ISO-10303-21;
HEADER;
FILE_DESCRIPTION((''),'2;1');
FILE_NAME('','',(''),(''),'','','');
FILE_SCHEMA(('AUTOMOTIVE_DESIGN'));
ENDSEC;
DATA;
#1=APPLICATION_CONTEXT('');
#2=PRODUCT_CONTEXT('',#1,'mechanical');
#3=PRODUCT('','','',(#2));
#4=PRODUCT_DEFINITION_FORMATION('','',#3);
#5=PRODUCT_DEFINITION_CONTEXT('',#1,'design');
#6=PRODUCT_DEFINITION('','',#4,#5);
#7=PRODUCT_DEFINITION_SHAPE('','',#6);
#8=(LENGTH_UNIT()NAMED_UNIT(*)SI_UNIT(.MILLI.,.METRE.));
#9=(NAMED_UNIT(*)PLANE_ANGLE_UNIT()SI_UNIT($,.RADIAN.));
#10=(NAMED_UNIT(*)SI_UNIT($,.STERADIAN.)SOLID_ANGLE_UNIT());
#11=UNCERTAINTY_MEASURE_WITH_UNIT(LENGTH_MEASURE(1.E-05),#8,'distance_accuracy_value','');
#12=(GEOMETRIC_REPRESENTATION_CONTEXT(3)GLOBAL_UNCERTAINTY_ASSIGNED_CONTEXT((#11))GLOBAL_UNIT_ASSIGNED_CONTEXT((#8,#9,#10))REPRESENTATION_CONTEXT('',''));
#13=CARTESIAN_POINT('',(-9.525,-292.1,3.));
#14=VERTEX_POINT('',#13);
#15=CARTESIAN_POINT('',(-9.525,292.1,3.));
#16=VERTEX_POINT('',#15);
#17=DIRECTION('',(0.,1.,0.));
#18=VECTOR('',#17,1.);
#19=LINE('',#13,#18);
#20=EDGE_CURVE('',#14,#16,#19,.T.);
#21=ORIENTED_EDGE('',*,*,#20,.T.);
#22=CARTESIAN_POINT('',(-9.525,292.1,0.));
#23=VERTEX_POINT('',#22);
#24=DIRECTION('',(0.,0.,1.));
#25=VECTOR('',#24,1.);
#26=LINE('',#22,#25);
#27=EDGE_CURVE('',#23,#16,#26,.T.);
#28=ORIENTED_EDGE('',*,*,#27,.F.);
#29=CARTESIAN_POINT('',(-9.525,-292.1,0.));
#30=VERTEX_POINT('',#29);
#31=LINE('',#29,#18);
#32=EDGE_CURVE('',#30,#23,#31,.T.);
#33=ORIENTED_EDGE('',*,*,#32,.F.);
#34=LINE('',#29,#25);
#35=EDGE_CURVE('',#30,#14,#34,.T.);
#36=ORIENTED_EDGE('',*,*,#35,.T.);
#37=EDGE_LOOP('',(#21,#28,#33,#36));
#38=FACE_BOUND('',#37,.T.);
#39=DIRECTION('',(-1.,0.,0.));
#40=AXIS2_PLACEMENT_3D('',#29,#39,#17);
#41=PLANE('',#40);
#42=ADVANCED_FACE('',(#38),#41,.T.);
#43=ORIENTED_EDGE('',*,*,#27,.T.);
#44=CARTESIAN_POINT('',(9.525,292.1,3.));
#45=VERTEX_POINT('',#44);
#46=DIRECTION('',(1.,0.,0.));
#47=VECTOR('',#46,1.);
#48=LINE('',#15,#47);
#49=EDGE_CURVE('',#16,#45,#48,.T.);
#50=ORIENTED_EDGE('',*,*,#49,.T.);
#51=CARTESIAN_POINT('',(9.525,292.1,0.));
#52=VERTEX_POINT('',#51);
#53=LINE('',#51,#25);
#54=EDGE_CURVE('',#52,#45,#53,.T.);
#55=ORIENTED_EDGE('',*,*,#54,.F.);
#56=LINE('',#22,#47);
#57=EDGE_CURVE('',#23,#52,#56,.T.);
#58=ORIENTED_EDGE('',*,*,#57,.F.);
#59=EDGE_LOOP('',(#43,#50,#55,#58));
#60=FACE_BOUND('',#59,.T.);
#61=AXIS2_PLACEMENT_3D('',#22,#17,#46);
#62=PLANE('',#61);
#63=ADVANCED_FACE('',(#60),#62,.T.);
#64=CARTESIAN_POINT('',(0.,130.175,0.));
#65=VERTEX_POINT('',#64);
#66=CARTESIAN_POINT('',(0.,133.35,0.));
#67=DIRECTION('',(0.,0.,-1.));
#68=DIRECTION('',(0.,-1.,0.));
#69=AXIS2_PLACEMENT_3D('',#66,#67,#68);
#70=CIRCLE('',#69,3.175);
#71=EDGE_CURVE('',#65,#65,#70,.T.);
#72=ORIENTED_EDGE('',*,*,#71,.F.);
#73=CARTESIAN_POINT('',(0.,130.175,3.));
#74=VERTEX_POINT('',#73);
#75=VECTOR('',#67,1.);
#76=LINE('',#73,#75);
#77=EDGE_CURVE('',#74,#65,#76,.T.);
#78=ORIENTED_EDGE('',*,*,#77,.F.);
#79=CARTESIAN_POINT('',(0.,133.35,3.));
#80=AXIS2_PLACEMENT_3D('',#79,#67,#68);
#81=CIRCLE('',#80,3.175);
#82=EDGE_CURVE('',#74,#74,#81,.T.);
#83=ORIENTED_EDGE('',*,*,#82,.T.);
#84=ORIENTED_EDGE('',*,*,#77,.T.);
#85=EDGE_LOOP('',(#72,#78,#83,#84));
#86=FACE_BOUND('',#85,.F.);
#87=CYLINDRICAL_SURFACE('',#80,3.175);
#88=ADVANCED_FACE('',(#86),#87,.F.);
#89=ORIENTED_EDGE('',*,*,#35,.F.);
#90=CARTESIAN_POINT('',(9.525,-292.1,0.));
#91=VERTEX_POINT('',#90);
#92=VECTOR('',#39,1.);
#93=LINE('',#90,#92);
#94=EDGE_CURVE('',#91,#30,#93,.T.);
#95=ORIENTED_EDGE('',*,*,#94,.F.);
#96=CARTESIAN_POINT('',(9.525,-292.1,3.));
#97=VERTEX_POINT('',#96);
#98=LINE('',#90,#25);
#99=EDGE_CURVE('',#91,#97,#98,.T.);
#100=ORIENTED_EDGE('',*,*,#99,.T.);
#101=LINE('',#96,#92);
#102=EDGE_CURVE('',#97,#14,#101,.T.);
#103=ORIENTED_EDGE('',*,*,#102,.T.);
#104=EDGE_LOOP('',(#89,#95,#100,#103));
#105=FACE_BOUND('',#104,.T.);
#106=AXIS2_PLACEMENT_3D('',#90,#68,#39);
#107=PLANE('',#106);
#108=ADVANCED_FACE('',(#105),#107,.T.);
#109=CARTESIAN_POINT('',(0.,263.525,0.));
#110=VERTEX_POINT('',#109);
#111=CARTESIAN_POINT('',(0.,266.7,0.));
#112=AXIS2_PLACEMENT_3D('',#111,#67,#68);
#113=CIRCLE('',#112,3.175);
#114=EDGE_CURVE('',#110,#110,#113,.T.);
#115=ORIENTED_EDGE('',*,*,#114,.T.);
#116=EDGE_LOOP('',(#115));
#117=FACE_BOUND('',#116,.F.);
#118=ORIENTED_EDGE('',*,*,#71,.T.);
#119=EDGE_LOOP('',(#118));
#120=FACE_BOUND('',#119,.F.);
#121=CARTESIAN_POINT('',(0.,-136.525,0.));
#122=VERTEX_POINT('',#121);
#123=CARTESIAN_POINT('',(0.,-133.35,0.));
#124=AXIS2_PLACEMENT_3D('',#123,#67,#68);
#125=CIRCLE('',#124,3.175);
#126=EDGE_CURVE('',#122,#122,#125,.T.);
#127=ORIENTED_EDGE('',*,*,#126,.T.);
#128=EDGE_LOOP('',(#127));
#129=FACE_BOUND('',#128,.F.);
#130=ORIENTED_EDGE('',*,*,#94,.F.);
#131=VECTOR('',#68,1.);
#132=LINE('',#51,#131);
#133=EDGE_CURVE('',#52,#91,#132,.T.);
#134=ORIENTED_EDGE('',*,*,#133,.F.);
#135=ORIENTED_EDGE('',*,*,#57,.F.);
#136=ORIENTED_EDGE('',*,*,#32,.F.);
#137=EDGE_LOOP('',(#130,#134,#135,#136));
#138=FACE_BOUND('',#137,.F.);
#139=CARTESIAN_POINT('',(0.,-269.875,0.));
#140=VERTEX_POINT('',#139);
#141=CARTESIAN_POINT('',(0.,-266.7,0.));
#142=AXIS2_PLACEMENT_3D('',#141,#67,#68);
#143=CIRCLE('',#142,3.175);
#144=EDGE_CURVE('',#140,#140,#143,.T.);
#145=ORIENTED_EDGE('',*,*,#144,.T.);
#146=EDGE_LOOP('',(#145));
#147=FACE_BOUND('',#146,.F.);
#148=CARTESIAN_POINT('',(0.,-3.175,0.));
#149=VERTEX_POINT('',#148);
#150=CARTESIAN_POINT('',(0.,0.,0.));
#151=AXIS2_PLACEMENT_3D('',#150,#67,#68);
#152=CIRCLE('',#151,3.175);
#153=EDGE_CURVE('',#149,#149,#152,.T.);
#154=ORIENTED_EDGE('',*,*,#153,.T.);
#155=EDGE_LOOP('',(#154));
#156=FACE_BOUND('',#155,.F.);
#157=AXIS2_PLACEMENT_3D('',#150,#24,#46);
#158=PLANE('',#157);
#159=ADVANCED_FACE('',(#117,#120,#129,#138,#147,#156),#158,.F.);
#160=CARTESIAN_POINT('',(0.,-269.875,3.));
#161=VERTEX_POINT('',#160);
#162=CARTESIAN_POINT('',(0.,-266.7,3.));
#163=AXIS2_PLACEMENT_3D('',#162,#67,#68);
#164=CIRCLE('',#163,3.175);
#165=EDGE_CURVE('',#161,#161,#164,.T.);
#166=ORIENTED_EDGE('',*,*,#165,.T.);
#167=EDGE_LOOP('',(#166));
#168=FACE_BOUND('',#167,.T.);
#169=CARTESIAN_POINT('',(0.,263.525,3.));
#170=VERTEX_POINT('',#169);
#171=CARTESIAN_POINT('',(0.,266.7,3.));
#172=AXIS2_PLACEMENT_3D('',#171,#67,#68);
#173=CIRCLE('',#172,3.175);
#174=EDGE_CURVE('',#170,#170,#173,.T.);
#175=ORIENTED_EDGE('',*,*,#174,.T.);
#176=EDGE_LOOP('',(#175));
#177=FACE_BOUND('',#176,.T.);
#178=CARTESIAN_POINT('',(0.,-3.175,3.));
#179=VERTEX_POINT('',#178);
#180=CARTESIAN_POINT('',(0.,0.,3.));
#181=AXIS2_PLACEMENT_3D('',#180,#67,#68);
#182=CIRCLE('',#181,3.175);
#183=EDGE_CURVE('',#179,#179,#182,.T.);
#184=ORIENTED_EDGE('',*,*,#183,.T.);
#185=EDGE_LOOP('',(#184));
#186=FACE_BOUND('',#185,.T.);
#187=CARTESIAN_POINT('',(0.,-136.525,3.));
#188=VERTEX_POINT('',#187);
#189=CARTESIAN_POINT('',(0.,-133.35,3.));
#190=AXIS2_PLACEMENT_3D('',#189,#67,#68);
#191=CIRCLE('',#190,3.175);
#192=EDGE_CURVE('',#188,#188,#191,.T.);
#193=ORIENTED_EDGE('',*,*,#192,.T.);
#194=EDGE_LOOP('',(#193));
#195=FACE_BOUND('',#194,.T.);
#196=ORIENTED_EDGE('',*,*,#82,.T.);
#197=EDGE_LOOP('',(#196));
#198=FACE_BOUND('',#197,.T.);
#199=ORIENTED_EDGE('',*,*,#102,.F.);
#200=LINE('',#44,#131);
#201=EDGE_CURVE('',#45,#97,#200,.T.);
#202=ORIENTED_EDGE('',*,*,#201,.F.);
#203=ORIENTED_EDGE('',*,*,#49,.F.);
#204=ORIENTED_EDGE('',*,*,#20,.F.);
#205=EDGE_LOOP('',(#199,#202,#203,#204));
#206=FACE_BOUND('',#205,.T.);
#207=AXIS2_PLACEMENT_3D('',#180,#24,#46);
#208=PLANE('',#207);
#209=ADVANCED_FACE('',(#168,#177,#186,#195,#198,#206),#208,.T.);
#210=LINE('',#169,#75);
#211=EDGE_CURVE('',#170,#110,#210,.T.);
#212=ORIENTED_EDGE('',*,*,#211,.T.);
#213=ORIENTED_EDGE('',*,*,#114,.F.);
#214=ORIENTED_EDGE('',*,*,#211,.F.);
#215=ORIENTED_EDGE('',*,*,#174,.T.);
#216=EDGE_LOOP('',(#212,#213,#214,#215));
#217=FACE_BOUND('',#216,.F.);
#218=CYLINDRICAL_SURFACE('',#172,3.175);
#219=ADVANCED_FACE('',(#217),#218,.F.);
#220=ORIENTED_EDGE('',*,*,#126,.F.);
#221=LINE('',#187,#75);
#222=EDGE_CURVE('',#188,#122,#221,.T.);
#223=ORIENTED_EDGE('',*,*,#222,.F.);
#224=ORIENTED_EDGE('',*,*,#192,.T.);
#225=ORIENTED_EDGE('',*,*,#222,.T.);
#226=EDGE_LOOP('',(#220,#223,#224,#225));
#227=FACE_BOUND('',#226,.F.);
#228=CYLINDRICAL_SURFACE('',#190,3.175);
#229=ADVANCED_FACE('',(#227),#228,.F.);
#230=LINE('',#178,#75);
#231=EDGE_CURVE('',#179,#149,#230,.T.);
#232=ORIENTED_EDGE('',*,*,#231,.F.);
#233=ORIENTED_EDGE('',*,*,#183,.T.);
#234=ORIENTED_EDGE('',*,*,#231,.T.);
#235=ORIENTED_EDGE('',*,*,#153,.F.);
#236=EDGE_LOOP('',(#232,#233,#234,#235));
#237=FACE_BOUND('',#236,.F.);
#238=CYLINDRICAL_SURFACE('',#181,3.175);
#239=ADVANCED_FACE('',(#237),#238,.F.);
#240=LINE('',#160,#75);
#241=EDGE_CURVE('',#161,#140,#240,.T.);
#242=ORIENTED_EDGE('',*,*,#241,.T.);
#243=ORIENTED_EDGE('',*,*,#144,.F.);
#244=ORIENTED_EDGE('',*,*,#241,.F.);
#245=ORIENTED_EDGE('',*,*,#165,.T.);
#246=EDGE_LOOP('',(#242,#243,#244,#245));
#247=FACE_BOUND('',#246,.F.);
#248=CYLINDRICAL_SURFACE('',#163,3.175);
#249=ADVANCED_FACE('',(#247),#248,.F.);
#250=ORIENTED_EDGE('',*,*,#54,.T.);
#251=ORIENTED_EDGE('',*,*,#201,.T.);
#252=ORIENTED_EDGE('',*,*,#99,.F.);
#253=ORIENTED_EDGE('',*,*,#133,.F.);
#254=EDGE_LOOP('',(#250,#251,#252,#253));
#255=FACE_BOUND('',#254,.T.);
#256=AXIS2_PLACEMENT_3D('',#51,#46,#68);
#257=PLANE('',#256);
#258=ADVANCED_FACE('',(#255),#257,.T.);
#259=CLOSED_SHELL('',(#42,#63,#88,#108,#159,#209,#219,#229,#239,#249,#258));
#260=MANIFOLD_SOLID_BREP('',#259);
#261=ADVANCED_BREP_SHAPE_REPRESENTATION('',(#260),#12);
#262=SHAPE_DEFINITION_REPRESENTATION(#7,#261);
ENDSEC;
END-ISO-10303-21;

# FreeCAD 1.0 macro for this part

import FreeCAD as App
import Part
import Sketcher
Q = App.Units.Quantity


def add_polygon(sketch, points):
    """Adds a closed chain of lines whose ends are joined by coincident constraints."""
    first, n = sketch.GeometryCount, len(points)
    for a, b in zip(points, points[1:] + points[:1]):
        sketch.addGeometry(Part.LineSegment(App.Vector(*a, 0), App.Vector(*b, 0)), False)
    for i in range(n):
        sketch.addConstraint(Sketcher.Constraint("Coincident", first + i, 2, first + (i + 1) % n, 1))

doc = App.newDocument("Part")
body = doc.addObject("PartDesign::Body", "Body")

sketch1 = body.newObject("Sketcher::SketchObject", "Sketch")
sketch1.AttachmentSupport = (doc.getObject("XY_Plane"), [""])
sketch1.MapMode = "FlatFace"
add_polygon(sketch1, [(10, 292), (-10, 292), (-10, -292), (10, -292)])
sketch1.addConstraint([
    Sketcher.Constraint("Horizontal", 0),
    Sketcher.Constraint("Vertical", 1),
    Sketcher.Constraint("Horizontal", 2),
    Sketcher.Constraint("Vertical", 3),
    Sketcher.Constraint("Symmetric", 0, 2, 2, 2, -1, 1),
    Sketcher.Constraint("DistanceY", 1, 2, 1, 1, Q("23 in")),
    Sketcher.Constraint("DistanceX", 0, 2, 0, 1, Q("0.75 in")),
])
pad1 = body.newObject("PartDesign::Pad", "Pad")
pad1.Profile = sketch1
pad1.Length = Q("0.1181102 in")

sketch2 = body.newObject("Sketcher::SketchObject", "Sketch001")
sketch2.AttachmentSupport = (doc.getObject("XY_Plane"), [""])
sketch2.MapMode = "FlatFace"
sketch2.AttachmentOffset = App.Placement(App.Vector(0, 0, 0.1181102 * 25.4), App.Rotation())
sketch2.addGeometry([
    Part.Circle(App.Vector(0, 266.7, 0), App.Vector(0, 0, 1), 3.2),
    Part.Circle(App.Vector(0, 133.3, 0), App.Vector(0, 0, 1), 3.2),
    Part.Circle(App.Vector(0, 0, 0), App.Vector(0, 0, 1), 3.2),
    Part.Circle(App.Vector(0, -133.3, 0), App.Vector(0, 0, 1), 3.2),
    Part.Circle(App.Vector(0, -266.7, 0), App.Vector(0, 0, 1), 3.2),
], False)
sketch2.addConstraint([
    Sketcher.Constraint("Coincident", 2, 3, -1, 1),
    Sketcher.Constraint("Equal", 0, 1),
    Sketcher.Constraint("Equal", 1, 2),
    Sketcher.Constraint("Equal", 2, 3),
    Sketcher.Constraint("Equal", 3, 4),
    Sketcher.Constraint("Symmetric", 1, 3, 3, 3, -1, 1),
    Sketcher.Constraint("Symmetric", 0, 3, 4, 3, -1, 1),
    Sketcher.Constraint("PointOnObject", 0, 3, -2),
    Sketcher.Constraint("PointOnObject", 1, 3, -2),
    Sketcher.Constraint("Diameter", 0, Q("0.25 in")),
    Sketcher.Constraint("DistanceY", 4, 3, 0, 3, Q("21 in")),
    Sketcher.Constraint("DistanceY", 3, 3, 1, 3, Q("10.5 in")),
])
doc.recompute()
hole = body.newObject("PartDesign::Hole", "Hole")
hole.Profile = sketch2
hole.ThreadType = "None"
hole.Diameter = Q("0.25 in")
hole.DepthType = "ThroughAll"

doc.recompute()
